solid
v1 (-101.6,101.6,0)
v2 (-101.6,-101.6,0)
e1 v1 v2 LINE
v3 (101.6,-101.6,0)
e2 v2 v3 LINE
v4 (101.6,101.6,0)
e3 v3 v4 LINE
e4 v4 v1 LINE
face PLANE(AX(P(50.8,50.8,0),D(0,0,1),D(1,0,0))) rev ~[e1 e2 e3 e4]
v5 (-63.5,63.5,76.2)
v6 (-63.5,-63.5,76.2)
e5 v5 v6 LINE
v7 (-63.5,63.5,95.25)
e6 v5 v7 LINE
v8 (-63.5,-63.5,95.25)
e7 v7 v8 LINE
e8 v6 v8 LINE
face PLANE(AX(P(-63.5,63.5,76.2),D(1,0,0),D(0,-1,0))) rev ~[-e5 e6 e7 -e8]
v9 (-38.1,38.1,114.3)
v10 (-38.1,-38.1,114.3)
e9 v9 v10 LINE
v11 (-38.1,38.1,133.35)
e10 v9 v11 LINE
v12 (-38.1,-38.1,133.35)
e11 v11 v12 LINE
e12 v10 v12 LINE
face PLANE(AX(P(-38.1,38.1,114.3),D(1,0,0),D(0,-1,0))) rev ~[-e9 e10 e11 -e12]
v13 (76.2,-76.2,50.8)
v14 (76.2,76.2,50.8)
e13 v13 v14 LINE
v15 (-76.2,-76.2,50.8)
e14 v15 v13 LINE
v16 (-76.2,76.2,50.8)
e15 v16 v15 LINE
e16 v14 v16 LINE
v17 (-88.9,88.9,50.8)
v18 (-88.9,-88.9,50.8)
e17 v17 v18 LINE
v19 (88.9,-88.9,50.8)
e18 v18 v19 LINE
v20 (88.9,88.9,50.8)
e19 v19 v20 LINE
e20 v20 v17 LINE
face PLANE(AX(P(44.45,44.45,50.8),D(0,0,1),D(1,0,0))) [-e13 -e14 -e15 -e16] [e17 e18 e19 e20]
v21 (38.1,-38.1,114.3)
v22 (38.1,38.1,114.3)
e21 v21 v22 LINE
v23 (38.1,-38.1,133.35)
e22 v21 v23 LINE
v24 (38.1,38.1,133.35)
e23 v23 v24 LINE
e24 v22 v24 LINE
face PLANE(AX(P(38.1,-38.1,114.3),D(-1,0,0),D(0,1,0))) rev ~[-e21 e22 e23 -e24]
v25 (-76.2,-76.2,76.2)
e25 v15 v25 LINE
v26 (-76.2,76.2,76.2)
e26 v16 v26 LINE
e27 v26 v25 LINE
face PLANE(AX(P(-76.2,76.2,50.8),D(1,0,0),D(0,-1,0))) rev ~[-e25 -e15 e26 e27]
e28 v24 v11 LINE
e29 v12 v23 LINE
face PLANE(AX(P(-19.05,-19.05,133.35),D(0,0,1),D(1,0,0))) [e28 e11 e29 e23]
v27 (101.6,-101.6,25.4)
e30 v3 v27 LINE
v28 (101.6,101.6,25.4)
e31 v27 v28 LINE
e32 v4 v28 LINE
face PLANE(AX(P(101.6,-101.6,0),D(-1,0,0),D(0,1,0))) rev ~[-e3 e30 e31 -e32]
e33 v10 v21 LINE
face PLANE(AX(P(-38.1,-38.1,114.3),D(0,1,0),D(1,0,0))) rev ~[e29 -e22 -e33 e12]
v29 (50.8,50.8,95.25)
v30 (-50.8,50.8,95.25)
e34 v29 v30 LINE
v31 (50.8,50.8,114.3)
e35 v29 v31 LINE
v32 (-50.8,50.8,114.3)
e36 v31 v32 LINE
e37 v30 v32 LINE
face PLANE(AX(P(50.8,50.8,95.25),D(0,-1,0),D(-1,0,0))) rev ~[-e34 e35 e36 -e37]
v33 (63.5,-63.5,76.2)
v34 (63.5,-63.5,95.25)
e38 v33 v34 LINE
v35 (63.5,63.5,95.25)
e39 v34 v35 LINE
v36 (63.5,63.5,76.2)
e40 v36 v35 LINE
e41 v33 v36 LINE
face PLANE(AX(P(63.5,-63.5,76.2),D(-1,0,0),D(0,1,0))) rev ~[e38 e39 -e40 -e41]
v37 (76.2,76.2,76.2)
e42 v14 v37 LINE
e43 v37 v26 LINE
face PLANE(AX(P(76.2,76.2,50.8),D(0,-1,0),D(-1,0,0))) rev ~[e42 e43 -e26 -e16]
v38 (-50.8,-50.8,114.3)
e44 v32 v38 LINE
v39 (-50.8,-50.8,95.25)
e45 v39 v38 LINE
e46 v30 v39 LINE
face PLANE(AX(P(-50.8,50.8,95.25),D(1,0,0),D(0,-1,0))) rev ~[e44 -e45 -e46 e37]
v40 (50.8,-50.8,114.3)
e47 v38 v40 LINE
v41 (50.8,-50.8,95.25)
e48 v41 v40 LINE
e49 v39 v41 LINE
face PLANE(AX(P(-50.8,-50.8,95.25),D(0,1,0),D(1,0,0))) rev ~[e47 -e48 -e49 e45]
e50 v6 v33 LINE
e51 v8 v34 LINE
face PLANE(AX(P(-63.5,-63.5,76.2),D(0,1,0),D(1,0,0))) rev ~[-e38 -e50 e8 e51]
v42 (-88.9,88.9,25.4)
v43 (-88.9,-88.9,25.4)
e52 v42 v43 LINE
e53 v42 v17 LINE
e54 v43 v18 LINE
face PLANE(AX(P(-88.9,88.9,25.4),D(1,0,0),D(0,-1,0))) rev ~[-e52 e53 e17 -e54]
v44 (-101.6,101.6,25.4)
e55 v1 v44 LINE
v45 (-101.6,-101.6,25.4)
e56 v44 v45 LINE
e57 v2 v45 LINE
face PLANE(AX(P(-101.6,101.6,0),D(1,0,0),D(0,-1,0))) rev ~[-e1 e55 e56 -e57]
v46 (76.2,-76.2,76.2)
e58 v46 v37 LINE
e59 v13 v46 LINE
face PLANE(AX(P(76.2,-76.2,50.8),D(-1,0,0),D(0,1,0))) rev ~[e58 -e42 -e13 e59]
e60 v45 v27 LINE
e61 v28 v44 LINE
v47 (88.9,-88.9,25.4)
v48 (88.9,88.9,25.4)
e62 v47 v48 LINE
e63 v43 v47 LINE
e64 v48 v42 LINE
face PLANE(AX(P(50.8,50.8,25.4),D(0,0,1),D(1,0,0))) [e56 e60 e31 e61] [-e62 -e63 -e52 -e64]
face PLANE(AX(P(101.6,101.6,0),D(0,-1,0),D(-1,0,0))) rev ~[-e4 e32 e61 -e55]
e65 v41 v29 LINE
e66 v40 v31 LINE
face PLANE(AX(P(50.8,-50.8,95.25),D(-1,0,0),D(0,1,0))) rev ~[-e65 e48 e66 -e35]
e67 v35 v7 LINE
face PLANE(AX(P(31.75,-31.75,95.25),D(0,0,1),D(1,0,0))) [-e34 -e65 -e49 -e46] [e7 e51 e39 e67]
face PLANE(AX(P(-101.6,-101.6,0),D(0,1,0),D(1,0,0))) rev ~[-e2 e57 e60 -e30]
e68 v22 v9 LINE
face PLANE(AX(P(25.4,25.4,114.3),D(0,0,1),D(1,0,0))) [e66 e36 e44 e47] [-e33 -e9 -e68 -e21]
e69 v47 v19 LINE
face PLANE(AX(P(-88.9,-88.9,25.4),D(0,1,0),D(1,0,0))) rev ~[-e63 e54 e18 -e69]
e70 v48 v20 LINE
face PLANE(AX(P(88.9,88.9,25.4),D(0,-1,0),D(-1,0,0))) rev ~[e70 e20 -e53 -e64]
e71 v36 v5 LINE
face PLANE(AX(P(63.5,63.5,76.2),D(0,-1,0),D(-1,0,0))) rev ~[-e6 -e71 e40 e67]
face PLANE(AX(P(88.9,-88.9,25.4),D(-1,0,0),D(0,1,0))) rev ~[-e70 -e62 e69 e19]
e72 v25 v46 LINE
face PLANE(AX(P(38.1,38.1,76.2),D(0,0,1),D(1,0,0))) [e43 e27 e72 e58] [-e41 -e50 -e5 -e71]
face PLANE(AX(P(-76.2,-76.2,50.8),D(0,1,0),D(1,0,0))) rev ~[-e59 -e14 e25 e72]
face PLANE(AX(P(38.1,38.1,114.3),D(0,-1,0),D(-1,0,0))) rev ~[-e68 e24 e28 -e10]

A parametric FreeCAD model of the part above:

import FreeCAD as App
import Part
import Sketcher

V = App.Vector
Q = App.Units.Quantity


def add_polygon(sketch, points):
    """Adds a closed chain of lines whose ends are joined by coincident constraints."""
    first, n = sketch.GeometryCount, len(points)
    for a, b in zip(points, points[1:] + points[:1]):
        sketch.addGeometry(Part.LineSegment(App.Vector(*a, 0), App.Vector(*b, 0)), False)
    for i in range(n):
        sketch.addConstraint(Sketcher.Constraint("Coincident", first + i, 2, first + (i + 1) % n, 1))

doc = App.newDocument("Part")
body = doc.addObject("PartDesign::Body", "Body")

sketch1 = doc.addObject("Sketcher::SketchObject", "Sketch")
body.addObject(sketch1)
sketch1.AttachmentSupport = (doc.XY_Plane, [""])
sketch1.MapMode = "FlatFace"
add_polygon(sketch1, [(102, 102), (-102, 102), (-102, -102), (102, -102)])
sketch1.addConstraint(Sketcher.Constraint("Horizontal", 0))
sketch1.addConstraint(Sketcher.Constraint("Vertical", 1))
sketch1.addConstraint(Sketcher.Constraint("Horizontal", 2))
sketch1.addConstraint(Sketcher.Constraint("Vertical", 3))
sketch1.addConstraint(Sketcher.Constraint("Symmetric", 0, 2, 2, 2, -1, 1))
sketch1.addConstraint(Sketcher.Constraint("Equal", 2, 1))
sketch1.addConstraint(Sketcher.Constraint("DistanceX", 0, 2, 0, 1, Q("8 in")))
pad1 = doc.addObject("PartDesign::Pad", "Pad")
body.addObject(pad1)
pad1.Profile = sketch1
pad1.Length = Q("1 in")

sketch2 = doc.addObject("Sketcher::SketchObject", "Sketch001")
body.addObject(sketch2)
sketch2.AttachmentSupport = (doc.XY_Plane, [""])
sketch2.MapMode = "FlatFace"
sketch2.AttachmentOffset = App.Placement(V(0, 0, 1 * 25.4), App.Rotation())
add_polygon(sketch2, [(-89, -89), (89, -89), (89, 89), (-89, 89)])
sketch2.addConstraint(Sketcher.Constraint("Horizontal", 0))
sketch2.addConstraint(Sketcher.Constraint("Vertical", 1))
sketch2.addConstraint(Sketcher.Constraint("Horizontal", 2))
sketch2.addConstraint(Sketcher.Constraint("Vertical", 3))
sketch2.addConstraint(Sketcher.Constraint("Symmetric", 0, 2, 2, 2, -1, 1))
sketch2.addConstraint(Sketcher.Constraint("Equal", 2, 1))
sketch2.addConstraint(Sketcher.Constraint("DistanceX", 0, 1, 0, 2, Q("7 in")))
pad2 = doc.addObject("PartDesign::Pad", "Pad001")
body.addObject(pad2)
pad2.Profile = sketch2
pad2.Length = Q("1 in")

sketch3 = doc.addObject("Sketcher::SketchObject", "Sketch002")
body.addObject(sketch3)
sketch3.AttachmentSupport = (doc.XY_Plane, [""])
sketch3.MapMode = "FlatFace"
sketch3.AttachmentOffset = App.Placement(V(0, 0, 2 * 25.4), App.Rotation())
add_polygon(sketch3, [(-76, -76), (76, -76), (76, 76), (-76, 76)])
sketch3.addConstraint(Sketcher.Constraint("Horizontal", 0))
sketch3.addConstraint(Sketcher.Constraint("Vertical", 1))
sketch3.addConstraint(Sketcher.Constraint("Horizontal", 2))
sketch3.addConstraint(Sketcher.Constraint("Vertical", 3))
sketch3.addConstraint(Sketcher.Constraint("Symmetric", 0, 2, 2, 2, -1, 1))
sketch3.addConstraint(Sketcher.Constraint("Equal", 2, 1))
sketch3.addConstraint(Sketcher.Constraint("DistanceX", 0, 1, 0, 2, Q("6 in")))
pad3 = doc.addObject("PartDesign::Pad", "Pad002")
body.addObject(pad3)
pad3.Profile = sketch3
pad3.Length = Q("1 in")

sketch4 = doc.addObject("Sketcher::SketchObject", "Sketch003")
body.addObject(sketch4)
sketch4.AttachmentSupport = (doc.XY_Plane, [""])
sketch4.MapMode = "FlatFace"
sketch4.AttachmentOffset = App.Placement(V(0, 0, 3 * 25.4), App.Rotation())
add_polygon(sketch4, [(64, -64), (64, 64), (-64, 64), (-64, -64)])
sketch4.addConstraint(Sketcher.Constraint("Vertical", 0))
sketch4.addConstraint(Sketcher.Constraint("Horizontal", 1))
sketch4.addConstraint(Sketcher.Constraint("Vertical", 2))
sketch4.addConstraint(Sketcher.Constraint("Horizontal", 3))
sketch4.addConstraint(Sketcher.Constraint("Symmetric", 0, 2, 2, 2, -1, 1))
sketch4.addConstraint(Sketcher.Constraint("Equal", 3, 0))
sketch4.addConstraint(Sketcher.Constraint("DistanceX", 1, 2, 1, 1, Q("5 in")))
pad4 = doc.addObject("PartDesign::Pad", "Pad003")
body.addObject(pad4)
pad4.Profile = sketch4
pad4.Length = Q("0.75 in")

sketch5 = doc.addObject("Sketcher::SketchObject", "Sketch004")
body.addObject(sketch5)
sketch5.AttachmentSupport = (doc.XY_Plane, [""])
sketch5.MapMode = "FlatFace"
sketch5.AttachmentOffset = App.Placement(V(0, 0, 3.75 * 25.4), App.Rotation())
add_polygon(sketch5, [(-51, -51), (51, -51), (51, 51), (-51, 51)])
sketch5.addConstraint(Sketcher.Constraint("Horizontal", 0))
sketch5.addConstraint(Sketcher.Constraint("Vertical", 1))
sketch5.addConstraint(Sketcher.Constraint("Horizontal", 2))
sketch5.addConstraint(Sketcher.Constraint("Vertical", 3))
sketch5.addConstraint(Sketcher.Constraint("Symmetric", 0, 2, 2, 2, -1, 1))
sketch5.addConstraint(Sketcher.Constraint("Equal", 2, 1))
sketch5.addConstraint(Sketcher.Constraint("DistanceX", 0, 1, 0, 2, Q("4 in")))
pad5 = doc.addObject("PartDesign::Pad", "Pad004")
body.addObject(pad5)
pad5.Profile = sketch5
pad5.Length = Q("0.75 in")

sketch6 = doc.addObject("Sketcher::SketchObject", "Sketch005")
body.addObject(sketch6)
sketch6.AttachmentSupport = (doc.XY_Plane, [""])
sketch6.MapMode = "FlatFace"
sketch6.AttachmentOffset = App.Placement(V(0, 0, 4.5 * 25.4), App.Rotation())
add_polygon(sketch6, [(-38, -38), (38, -38), (38, 38), (-38, 38)])
sketch6.addConstraint(Sketcher.Constraint("Horizontal", 0))
sketch6.addConstraint(Sketcher.Constraint("Vertical", 1))
sketch6.addConstraint(Sketcher.Constraint("Horizontal", 2))
sketch6.addConstraint(Sketcher.Constraint("Vertical", 3))
sketch6.addConstraint(Sketcher.Constraint("Symmetric", 0, 2, 2, 2, -1, 1))
sketch6.addConstraint(Sketcher.Constraint("Equal", 2, 1))
sketch6.addConstraint(Sketcher.Constraint("DistanceX", 0, 1, 0, 2, Q("3 in")))
pad6 = doc.addObject("PartDesign::Pad", "Pad005")
body.addObject(pad6)
pad6.Profile = sketch6
pad6.Length = Q("0.75 in")

doc.recompute()
